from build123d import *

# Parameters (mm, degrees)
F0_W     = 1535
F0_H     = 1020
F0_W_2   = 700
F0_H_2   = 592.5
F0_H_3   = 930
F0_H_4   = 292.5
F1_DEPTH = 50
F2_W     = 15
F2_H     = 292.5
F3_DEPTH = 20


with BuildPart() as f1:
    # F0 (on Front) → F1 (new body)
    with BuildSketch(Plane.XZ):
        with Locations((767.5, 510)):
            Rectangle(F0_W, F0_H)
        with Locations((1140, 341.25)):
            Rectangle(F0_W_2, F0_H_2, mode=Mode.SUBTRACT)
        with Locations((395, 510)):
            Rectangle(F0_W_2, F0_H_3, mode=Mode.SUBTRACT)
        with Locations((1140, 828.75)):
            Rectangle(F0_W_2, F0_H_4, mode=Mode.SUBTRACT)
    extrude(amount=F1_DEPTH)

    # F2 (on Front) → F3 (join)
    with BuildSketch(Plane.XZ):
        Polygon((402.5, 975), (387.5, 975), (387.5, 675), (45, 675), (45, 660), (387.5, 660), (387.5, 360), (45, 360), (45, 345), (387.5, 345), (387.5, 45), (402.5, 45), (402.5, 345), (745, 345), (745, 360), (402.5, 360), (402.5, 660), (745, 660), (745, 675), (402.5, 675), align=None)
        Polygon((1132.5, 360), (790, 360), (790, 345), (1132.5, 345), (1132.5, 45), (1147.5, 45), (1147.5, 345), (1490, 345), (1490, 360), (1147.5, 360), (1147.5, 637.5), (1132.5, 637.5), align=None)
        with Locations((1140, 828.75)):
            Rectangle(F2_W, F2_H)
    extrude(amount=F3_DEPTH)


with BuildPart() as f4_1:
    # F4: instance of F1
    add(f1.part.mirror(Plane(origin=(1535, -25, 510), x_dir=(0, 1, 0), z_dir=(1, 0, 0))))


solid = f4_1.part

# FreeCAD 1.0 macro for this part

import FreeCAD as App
import Part
import Sketcher
from FreeCAD import Vector
Q = App.Units.Quantity

doc = App.newDocument("Part")
body = doc.addObject("PartDesign::Body", "Body")

# Sketch on XZ plane
sketch1 = doc.addObject("Sketcher::SketchObject", "Sketch")
body.addObject(sketch1)
sketch1.AttachmentSupport = (doc.XZ_Plane, [""])
sketch1.MapMode = "FlatFace"
sketch1.addGeometry(Part.LineSegment(Vector(0, 1020, 0), Vector(0, 0, 0)), False)
sketch1.addGeometry(Part.LineSegment(Vector(0, 0, 0), Vector(1535, 0, 0)), False)
sketch1.addGeometry(Part.LineSegment(Vector(1535, 0, 0), Vector(1535, 1020, 0)), False)
sketch1.addGeometry(Part.LineSegment(Vector(1535, 1020, 0), Vector(0, 1020, 0)), False)
sketch1.addGeometry(Part.LineSegment(Vector(1490, 45, 0), Vector(790, 45, 0)), False)
sketch1.addGeometry(Part.LineSegment(Vector(790, 45, 0), Vector(790, 638, 0)), False)
sketch1.addGeometry(Part.LineSegment(Vector(790, 638, 0), Vector(1490, 638, 0)), False)
sketch1.addGeometry(Part.LineSegment(Vector(1490, 638, 0), Vector(1490, 45, 0)), False)
sketch1.addGeometry(Part.LineSegment(Vector(745, 45, 0), Vector(45, 45, 0)), False)
sketch1.addGeometry(Part.LineSegment(Vector(45, 45, 0), Vector(45, 975, 0)), False)
sketch1.addGeometry(Part.LineSegment(Vector(45, 975, 0), Vector(745, 975, 0)), False)
sketch1.addGeometry(Part.LineSegment(Vector(745, 975, 0), Vector(745, 45, 0)), False)
sketch1.addGeometry(Part.LineSegment(Vector(1490, 682, 0), Vector(790, 682, 0)), False)
sketch1.addGeometry(Part.LineSegment(Vector(790, 682, 0), Vector(790, 975, 0)), False)
sketch1.addGeometry(Part.LineSegment(Vector(790, 975, 0), Vector(1490, 975, 0)), False)
sketch1.addGeometry(Part.LineSegment(Vector(1490, 975, 0), Vector(1490, 682, 0)), False)
sketch1.addConstraint(Sketcher.Constraint("Coincident", 0, 2, 1, 1))
sketch1.addConstraint(Sketcher.Constraint("Coincident", 1, 2, 2, 1))
sketch1.addConstraint(Sketcher.Constraint("Coincident", 2, 2, 3, 1))
sketch1.addConstraint(Sketcher.Constraint("Coincident", 3, 2, 0, 1))
sketch1.addConstraint(Sketcher.Constraint("Coincident", 4, 2, 5, 1))
sketch1.addConstraint(Sketcher.Constraint("Coincident", 5, 2, 6, 1))
sketch1.addConstraint(Sketcher.Constraint("Coincident", 6, 2, 7, 1))
sketch1.addConstraint(Sketcher.Constraint("Coincident", 7, 2, 4, 1))
sketch1.addConstraint(Sketcher.Constraint("Coincident", 8, 2, 9, 1))
sketch1.addConstraint(Sketcher.Constraint("Coincident", 9, 2, 10, 1))
sketch1.addConstraint(Sketcher.Constraint("Coincident", 10, 2, 11, 1))
sketch1.addConstraint(Sketcher.Constraint("Coincident", 11, 2, 8, 1))
sketch1.addConstraint(Sketcher.Constraint("Coincident", 12, 2, 13, 1))
sketch1.addConstraint(Sketcher.Constraint("Coincident", 13, 2, 14, 1))
sketch1.addConstraint(Sketcher.Constraint("Coincident", 14, 2, 15, 1))
sketch1.addConstraint(Sketcher.Constraint("Coincident", 15, 2, 12, 1))
sketch1.addConstraint(Sketcher.Constraint("Vertical", 0))
sketch1.addConstraint(Sketcher.Constraint("Horizontal", 1))
sketch1.addConstraint(Sketcher.Constraint("Vertical", 2))
sketch1.addConstraint(Sketcher.Constraint("Horizontal", 3))
sketch1.addConstraint(Sketcher.Constraint("Horizontal", 4))
sketch1.addConstraint(Sketcher.Constraint("Vertical", 5))
sketch1.addConstraint(Sketcher.Constraint("Horizontal", 6))
sketch1.addConstraint(Sketcher.Constraint("Vertical", 7))
sketch1.addConstraint(Sketcher.Constraint("Horizontal", 8))
sketch1.addConstraint(Sketcher.Constraint("Vertical", 9))
sketch1.addConstraint(Sketcher.Constraint("Horizontal", 10))
sketch1.addConstraint(Sketcher.Constraint("Vertical", 11))
sketch1.addConstraint(Sketcher.Constraint("Horizontal", 12))
sketch1.addConstraint(Sketcher.Constraint("Vertical", 13))
sketch1.addConstraint(Sketcher.Constraint("Horizontal", 14))
sketch1.addConstraint(Sketcher.Constraint("Vertical", 15))
sketch1.addConstraint(Sketcher.Constraint("Coincident", 0, 2, -1, 1))
sketch1.addConstraint(Sketcher.Constraint("Horizontal", 7, 2, 8, 2))
sketch1.addConstraint(Sketcher.Constraint("Horizontal", 10, 2, 13, 2))
sketch1.addConstraint(Sketcher.Constraint("Vertical", 5, 2, 12, 2))
sketch1.addConstraint(Sketcher.Constraint("Vertical", 7, 2, 14, 2))
sketch1.addConstraint(Sketcher.Constraint("Equal", 6, 8))
sketch1.addConstraint(Sketcher.Constraint("DistanceX", 1, 1, 1, 2, Q("1535 mm")))
sketch1.addConstraint(Sketcher.Constraint("DistanceX", 4, 2, 4, 1, Q("700 mm")))
sketch1.addConstraint(Sketcher.Constraint("DistanceY", 0, 2, 0, 1, Q("1020 mm")))
sketch1.addConstraint(Sketcher.Constraint("DistanceY", 9, 1, 9, 2, Q("930 mm")))
sketch1.addConstraint(Sketcher.Constraint("DistanceY", 5, 1, 5, 2, Q("592.5 mm")))
sketch1.addConstraint(Sketcher.Constraint("DistanceY", 13, 1, 13, 2, Q("292.5 mm")))
sketch1.addConstraint(Sketcher.Constraint("DistanceX", -1, 1, 4, 2, Q("790 mm")))
sketch1.addConstraint(Sketcher.Constraint("DistanceY", -1, 1, 4, 2, Q("45 mm")))
sketch1.addConstraint(Sketcher.Constraint("DistanceX", -1, 1, 8, 2, Q("45 mm")))
pad1 = doc.addObject("PartDesign::Pad", "Pad")
body.addObject(pad1)
pad1.Profile = sketch1
pad1.Length = 50

# Sketch on XZ plane
sketch2 = doc.addObject("Sketcher::SketchObject", "Sketch001")
body.addObject(sketch2)
sketch2.AttachmentSupport = (doc.XZ_Plane, [""])
sketch2.MapMode = "FlatFace"
sketch2.addGeometry(Part.LineSegment(Vector(402, 975, 0), Vector(388, 975, 0)), False)
sketch2.addGeometry(Part.LineSegment(Vector(388, 975, 0), Vector(388, 675, 0)), False)
sketch2.addGeometry(Part.LineSegment(Vector(388, 675, 0), Vector(45, 675, 0)), False)
sketch2.addGeometry(Part.LineSegment(Vector(45, 675, 0), Vector(45, 660, 0)), False)
sketch2.addGeometry(Part.LineSegment(Vector(45, 660, 0), Vector(388, 660, 0)), False)
sketch2.addGeometry(Part.LineSegment(Vector(388, 660, 0), Vector(388, 360, 0)), False)
sketch2.addGeometry(Part.LineSegment(Vector(388, 360, 0), Vector(45, 360, 0)), False)
sketch2.addGeometry(Part.LineSegment(Vector(45, 360, 0), Vector(45, 345, 0)), False)
sketch2.addGeometry(Part.LineSegment(Vector(45, 345, 0), Vector(388, 345, 0)), False)
sketch2.addGeometry(Part.LineSegment(Vector(388, 345, 0), Vector(388, 45, 0)), False)
sketch2.addGeometry(Part.LineSegment(Vector(388, 45, 0), Vector(402, 45, 0)), False)
sketch2.addGeometry(Part.LineSegment(Vector(402, 45, 0), Vector(402, 345, 0)), False)
sketch2.addGeometry(Part.LineSegment(Vector(402, 345, 0), Vector(745, 345, 0)), False)
sketch2.addGeometry(Part.LineSegment(Vector(745, 345, 0), Vector(745, 360, 0)), False)
sketch2.addGeometry(Part.LineSegment(Vector(745, 360, 0), Vector(402, 360, 0)), False)
sketch2.addGeometry(Part.LineSegment(Vector(402, 360, 0), Vector(402, 660, 0)), False)
sketch2.addGeometry(Part.LineSegment(Vector(402, 660, 0), Vector(745, 660, 0)), False)
sketch2.addGeometry(Part.LineSegment(Vector(745, 660, 0), Vector(745, 675, 0)), False)
sketch2.addGeometry(Part.LineSegment(Vector(745, 675, 0), Vector(402, 675, 0)), False)
sketch2.addGeometry(Part.LineSegment(Vector(402, 675, 0), Vector(402, 975, 0)), False)
sketch2.addGeometry(Part.LineSegment(Vector(1132, 360, 0), Vector(790, 360, 0)), False)
sketch2.addGeometry(Part.LineSegment(Vector(790, 360, 0), Vector(790, 345, 0)), False)
sketch2.addGeometry(Part.LineSegment(Vector(790, 345, 0), Vector(1132, 345, 0)), False)
sketch2.addGeometry(Part.LineSegment(Vector(1132, 345, 0), Vector(1132, 45, 0)), False)
sketch2.addGeometry(Part.LineSegment(Vector(1132, 45, 0), Vector(1148, 45, 0)), False)
sketch2.addGeometry(Part.LineSegment(Vector(1148, 45, 0), Vector(1148, 345, 0)), False)
sketch2.addGeometry(Part.LineSegment(Vector(1148, 345, 0), Vector(1490, 345, 0)), False)
sketch2.addGeometry(Part.LineSegment(Vector(1490, 345, 0), Vector(1490, 360, 0)), False)
sketch2.addGeometry(Part.LineSegment(Vector(1490, 360, 0), Vector(1148, 360, 0)), False)
sketch2.addGeometry(Part.LineSegment(Vector(1148, 360, 0), Vector(1148, 638, 0)), False)
sketch2.addGeometry(Part.LineSegment(Vector(1148, 638, 0), Vector(1132, 638, 0)), False)
sketch2.addGeometry(Part.LineSegment(Vector(1132, 638, 0), Vector(1132, 360, 0)), False)
sketch2.addGeometry(Part.LineSegment(Vector(1132, 975, 0), Vector(1132, 682, 0)), False)
sketch2.addGeometry(Part.LineSegment(Vector(1132, 682, 0), Vector(1148, 682, 0)), False)
sketch2.addGeometry(Part.LineSegment(Vector(1148, 682, 0), Vector(1148, 975, 0)), False)
sketch2.addGeometry(Part.LineSegment(Vector(1148, 975, 0), Vector(1132, 975, 0)), False)
sketch2.addConstraint(Sketcher.Constraint("Coincident", 0, 2, 1, 1))
sketch2.addConstraint(Sketcher.Constraint("Coincident", 1, 2, 2, 1))
sketch2.addConstraint(Sketcher.Constraint("Coincident", 2, 2, 3, 1))
sketch2.addConstraint(Sketcher.Constraint("Coincident", 3, 2, 4, 1))
sketch2.addConstraint(Sketcher.Constraint("Coincident", 4, 2, 5, 1))
sketch2.addConstraint(Sketcher.Constraint("Coincident", 5, 2, 6, 1))
sketch2.addConstraint(Sketcher.Constraint("Coincident", 6, 2, 7, 1))
sketch2.addConstraint(Sketcher.Constraint("Coincident", 7, 2, 8, 1))
sketch2.addConstraint(Sketcher.Constraint("Coincident", 8, 2, 9, 1))
sketch2.addConstraint(Sketcher.Constraint("Coincident", 9, 2, 10, 1))
sketch2.addConstraint(Sketcher.Constraint("Coincident", 10, 2, 11, 1))
sketch2.addConstraint(Sketcher.Constraint("Coincident", 11, 2, 12, 1))
sketch2.addConstraint(Sketcher.Constraint("Coincident", 12, 2, 13, 1))
sketch2.addConstraint(Sketcher.Constraint("Coincident", 13, 2, 14, 1))
sketch2.addConstraint(Sketcher.Constraint("Coincident", 14, 2, 15, 1))
sketch2.addConstraint(Sketcher.Constraint("Coincident", 15, 2, 16, 1))
sketch2.addConstraint(Sketcher.Constraint("Coincident", 16, 2, 17, 1))
sketch2.addConstraint(Sketcher.Constraint("Coincident", 17, 2, 18, 1))
sketch2.addConstraint(Sketcher.Constraint("Coincident", 18, 2, 19, 1))
sketch2.addConstraint(Sketcher.Constraint("Coincident", 19, 2, 0, 1))
sketch2.addConstraint(Sketcher.Constraint("Coincident", 20, 2, 21, 1))
sketch2.addConstraint(Sketcher.Constraint("Coincident", 21, 2, 22, 1))
sketch2.addConstraint(Sketcher.Constraint("Coincident", 22, 2, 23, 1))
sketch2.addConstraint(Sketcher.Constraint("Coincident", 23, 2, 24, 1))
sketch2.addConstraint(Sketcher.Constraint("Coincident", 24, 2, 25, 1))
sketch2.addConstraint(Sketcher.Constraint("Coincident", 25, 2, 26, 1))
sketch2.addConstraint(Sketcher.Constraint("Coincident", 26, 2, 27, 1))
sketch2.addConstraint(Sketcher.Constraint("Coincident", 27, 2, 28, 1))
sketch2.addConstraint(Sketcher.Constraint("Coincident", 28, 2, 29, 1))
sketch2.addConstraint(Sketcher.Constraint("Coincident", 29, 2, 30, 1))
sketch2.addConstraint(Sketcher.Constraint("Coincident", 30, 2, 31, 1))
sketch2.addConstraint(Sketcher.Constraint("Coincident", 31, 2, 20, 1))
sketch2.addConstraint(Sketcher.Constraint("Coincident", 32, 2, 33, 1))
sketch2.addConstraint(Sketcher.Constraint("Coincident", 33, 2, 34, 1))
sketch2.addConstraint(Sketcher.Constraint("Coincident", 34, 2, 35, 1))
sketch2.addConstraint(Sketcher.Constraint("Coincident", 35, 2, 32, 1))
sketch2.addConstraint(Sketcher.Constraint("Horizontal", 0))
sketch2.addConstraint(Sketcher.Constraint("Vertical", 1))
sketch2.addConstraint(Sketcher.Constraint("Horizontal", 2))
sketch2.addConstraint(Sketcher.Constraint("Vertical", 3))
sketch2.addConstraint(Sketcher.Constraint("Horizontal", 4))
sketch2.addConstraint(Sketcher.Constraint("Vertical", 5))
sketch2.addConstraint(Sketcher.Constraint("Horizontal", 6))
sketch2.addConstraint(Sketcher.Constraint("Vertical", 7))
sketch2.addConstraint(Sketcher.Constraint("Horizontal", 8))
sketch2.addConstraint(Sketcher.Constraint("Vertical", 9))
sketch2.addConstraint(Sketcher.Constraint("Horizontal", 10))
sketch2.addConstraint(Sketcher.Constraint("Vertical", 11))
sketch2.addConstraint(Sketcher.Constraint("Horizontal", 12))
sketch2.addConstraint(Sketcher.Constraint("Vertical", 13))
sketch2.addConstraint(Sketcher.Constraint("Horizontal", 14))
sketch2.addConstraint(Sketcher.Constraint("Vertical", 15))
sketch2.addConstraint(Sketcher.Constraint("Horizontal", 16))
sketch2.addConstraint(Sketcher.Constraint("Vertical", 17))
sketch2.addConstraint(Sketcher.Constraint("Horizontal", 18))
sketch2.addConstraint(Sketcher.Constraint("Vertical", 19))
sketch2.addConstraint(Sketcher.Constraint("Horizontal", 20))
sketch2.addConstraint(Sketcher.Constraint("Vertical", 21))
sketch2.addConstraint(Sketcher.Constraint("Horizontal", 22))
sketch2.addConstraint(Sketcher.Constraint("Vertical", 23))
sketch2.addConstraint(Sketcher.Constraint("Horizontal", 24))
sketch2.addConstraint(Sketcher.Constraint("Vertical", 25))
sketch2.addConstraint(Sketcher.Constraint("Horizontal", 26))
sketch2.addConstraint(Sketcher.Constraint("Vertical", 27))
sketch2.addConstraint(Sketcher.Constraint("Horizontal", 28))
sketch2.addConstraint(Sketcher.Constraint("Vertical", 29))
sketch2.addConstraint(Sketcher.Constraint("Horizontal", 30))
sketch2.addConstraint(Sketcher.Constraint("Vertical", 31))
sketch2.addConstraint(Sketcher.Constraint("Vertical", 32))
sketch2.addConstraint(Sketcher.Constraint("Horizontal", 33))
sketch2.addConstraint(Sketcher.Constraint("Vertical", 34))
sketch2.addConstraint(Sketcher.Constraint("Horizontal", 35))
sketch2.addConstraint(Sketcher.Constraint("Horizontal", 8, 2, 11, 2))
sketch2.addConstraint(Sketcher.Constraint("Horizontal", 6, 2, 13, 2))
sketch2.addConstraint(Sketcher.Constraint("Horizontal", 4, 2, 15, 2))
sketch2.addConstraint(Sketcher.Constraint("Horizontal", 2, 2, 17, 2))
sketch2.addConstraint(Sketcher.Constraint("Horizontal", 14, 2, 20, 2))
sketch2.addConstraint(Sketcher.Constraint("Horizontal", 12, 2, 21, 2))
sketch2.addConstraint(Sketcher.Constraint("Horizontal", 10, 2, 23, 2))
sketch2.addConstraint(Sketcher.Constraint("Horizontal", 22, 2, 25, 2))
sketch2.addConstraint(Sketcher.Constraint("Horizontal", 20, 2, 27, 2))
sketch2.addConstraint(Sketcher.Constraint("Horizontal", 19, 2, 34, 2))
sketch2.addConstraint(Sketcher.Constraint("Vertical", 1, 2, 4, 2))
sketch2.addConstraint(Sketcher.Constraint("Vertical", 3, 2, 6, 2))
sketch2.addConstraint(Sketcher.Constraint("Vertical", 5, 2, 8, 2))
sketch2.addConstraint(Sketcher.Constraint("Vertical", 11, 2, 14, 2))
sketch2.addConstraint(Sketcher.Constraint("Vertical", 13, 2, 16, 2))
sketch2.addConstraint(Sketcher.Constraint("Vertical", 15, 2, 18, 2))
sketch2.addConstraint(Sketcher.Constraint("Vertical", 25, 2, 28, 2))
sketch2.addConstraint(Sketcher.Constraint("Vertical", 23, 2, 30, 2))
sketch2.addConstraint(Sketcher.Constraint("Vertical", 31, 2, 32, 2))
sketch2.addConstraint(Sketcher.Constraint("Vertical", 29, 2, 33, 2))
sketch2.addConstraint(Sketcher.Constraint("Equal", 8, 12))
sketch2.addConstraint(Sketcher.Constraint("Equal", 18, 20))
sketch2.addConstraint(Sketcher.Constraint("Equal", 10, 24))
sketch2.addConstraint(Sketcher.Constraint("Equal", 22, 26))
sketch2.addConstraint(Sketcher.Constraint("Equal", 35, 3))
sketch2.addConstraint(Sketcher.Constraint("Equal", 1, 5))
sketch2.addConstraint(Sketcher.Constraint("Equal", 3, 7))
sketch2.addConstraint(Sketcher.Constraint("Equal", 5, 9))
sketch2.addConstraint(Sketcher.Constraint("DistanceX", 0, 2, 0, 1, Q("15 mm")))
sketch2.addConstraint(Sketcher.Constraint("DistanceY", 1, 2, 1, 1, Q("300 mm")))
sketch2.addConstraint(Sketcher.Constraint("DistanceX", 2, 2, 2, 1, Q("342.5 mm")))
sketch2.addConstraint(Sketcher.Constraint("DistanceY", 29, 1, 29, 2, Q("277.5 mm")))
sketch2.addConstraint(Sketcher.Constraint("DistanceY", 32, 2, 32, 1, Q("292.5 mm")))
sketch2.addConstraint(Sketcher.Constraint("DistanceY", -1, 1, 0, 2, Q("975 mm")))
sketch2.addConstraint(Sketcher.Constraint("DistanceX", -1, 1, 2, 2, Q("45 mm")))
sketch2.addConstraint(Sketcher.Constraint("DistanceX", -1, 1, 20, 2, Q("790 mm")))
pad2 = doc.addObject("PartDesign::Pad", "Pad001")
body.addObject(pad2)
pad2.Profile = sketch2
pad2.Length = 20
body2 = doc.addObject("PartDesign::Body", "Body001")
doc.recompute()

mirroring = doc.addObject("Part::Mirroring", "Mirroring")
mirroring.Source = body
mirroring.Base = Vector(1535, -25, 510)
mirroring.Normal = Vector(1, 0, 0)
body2.BaseFeature = mirroring
doc.recompute()
body.Visibility = False
mirroring.Visibility = False

doc.recompute()
